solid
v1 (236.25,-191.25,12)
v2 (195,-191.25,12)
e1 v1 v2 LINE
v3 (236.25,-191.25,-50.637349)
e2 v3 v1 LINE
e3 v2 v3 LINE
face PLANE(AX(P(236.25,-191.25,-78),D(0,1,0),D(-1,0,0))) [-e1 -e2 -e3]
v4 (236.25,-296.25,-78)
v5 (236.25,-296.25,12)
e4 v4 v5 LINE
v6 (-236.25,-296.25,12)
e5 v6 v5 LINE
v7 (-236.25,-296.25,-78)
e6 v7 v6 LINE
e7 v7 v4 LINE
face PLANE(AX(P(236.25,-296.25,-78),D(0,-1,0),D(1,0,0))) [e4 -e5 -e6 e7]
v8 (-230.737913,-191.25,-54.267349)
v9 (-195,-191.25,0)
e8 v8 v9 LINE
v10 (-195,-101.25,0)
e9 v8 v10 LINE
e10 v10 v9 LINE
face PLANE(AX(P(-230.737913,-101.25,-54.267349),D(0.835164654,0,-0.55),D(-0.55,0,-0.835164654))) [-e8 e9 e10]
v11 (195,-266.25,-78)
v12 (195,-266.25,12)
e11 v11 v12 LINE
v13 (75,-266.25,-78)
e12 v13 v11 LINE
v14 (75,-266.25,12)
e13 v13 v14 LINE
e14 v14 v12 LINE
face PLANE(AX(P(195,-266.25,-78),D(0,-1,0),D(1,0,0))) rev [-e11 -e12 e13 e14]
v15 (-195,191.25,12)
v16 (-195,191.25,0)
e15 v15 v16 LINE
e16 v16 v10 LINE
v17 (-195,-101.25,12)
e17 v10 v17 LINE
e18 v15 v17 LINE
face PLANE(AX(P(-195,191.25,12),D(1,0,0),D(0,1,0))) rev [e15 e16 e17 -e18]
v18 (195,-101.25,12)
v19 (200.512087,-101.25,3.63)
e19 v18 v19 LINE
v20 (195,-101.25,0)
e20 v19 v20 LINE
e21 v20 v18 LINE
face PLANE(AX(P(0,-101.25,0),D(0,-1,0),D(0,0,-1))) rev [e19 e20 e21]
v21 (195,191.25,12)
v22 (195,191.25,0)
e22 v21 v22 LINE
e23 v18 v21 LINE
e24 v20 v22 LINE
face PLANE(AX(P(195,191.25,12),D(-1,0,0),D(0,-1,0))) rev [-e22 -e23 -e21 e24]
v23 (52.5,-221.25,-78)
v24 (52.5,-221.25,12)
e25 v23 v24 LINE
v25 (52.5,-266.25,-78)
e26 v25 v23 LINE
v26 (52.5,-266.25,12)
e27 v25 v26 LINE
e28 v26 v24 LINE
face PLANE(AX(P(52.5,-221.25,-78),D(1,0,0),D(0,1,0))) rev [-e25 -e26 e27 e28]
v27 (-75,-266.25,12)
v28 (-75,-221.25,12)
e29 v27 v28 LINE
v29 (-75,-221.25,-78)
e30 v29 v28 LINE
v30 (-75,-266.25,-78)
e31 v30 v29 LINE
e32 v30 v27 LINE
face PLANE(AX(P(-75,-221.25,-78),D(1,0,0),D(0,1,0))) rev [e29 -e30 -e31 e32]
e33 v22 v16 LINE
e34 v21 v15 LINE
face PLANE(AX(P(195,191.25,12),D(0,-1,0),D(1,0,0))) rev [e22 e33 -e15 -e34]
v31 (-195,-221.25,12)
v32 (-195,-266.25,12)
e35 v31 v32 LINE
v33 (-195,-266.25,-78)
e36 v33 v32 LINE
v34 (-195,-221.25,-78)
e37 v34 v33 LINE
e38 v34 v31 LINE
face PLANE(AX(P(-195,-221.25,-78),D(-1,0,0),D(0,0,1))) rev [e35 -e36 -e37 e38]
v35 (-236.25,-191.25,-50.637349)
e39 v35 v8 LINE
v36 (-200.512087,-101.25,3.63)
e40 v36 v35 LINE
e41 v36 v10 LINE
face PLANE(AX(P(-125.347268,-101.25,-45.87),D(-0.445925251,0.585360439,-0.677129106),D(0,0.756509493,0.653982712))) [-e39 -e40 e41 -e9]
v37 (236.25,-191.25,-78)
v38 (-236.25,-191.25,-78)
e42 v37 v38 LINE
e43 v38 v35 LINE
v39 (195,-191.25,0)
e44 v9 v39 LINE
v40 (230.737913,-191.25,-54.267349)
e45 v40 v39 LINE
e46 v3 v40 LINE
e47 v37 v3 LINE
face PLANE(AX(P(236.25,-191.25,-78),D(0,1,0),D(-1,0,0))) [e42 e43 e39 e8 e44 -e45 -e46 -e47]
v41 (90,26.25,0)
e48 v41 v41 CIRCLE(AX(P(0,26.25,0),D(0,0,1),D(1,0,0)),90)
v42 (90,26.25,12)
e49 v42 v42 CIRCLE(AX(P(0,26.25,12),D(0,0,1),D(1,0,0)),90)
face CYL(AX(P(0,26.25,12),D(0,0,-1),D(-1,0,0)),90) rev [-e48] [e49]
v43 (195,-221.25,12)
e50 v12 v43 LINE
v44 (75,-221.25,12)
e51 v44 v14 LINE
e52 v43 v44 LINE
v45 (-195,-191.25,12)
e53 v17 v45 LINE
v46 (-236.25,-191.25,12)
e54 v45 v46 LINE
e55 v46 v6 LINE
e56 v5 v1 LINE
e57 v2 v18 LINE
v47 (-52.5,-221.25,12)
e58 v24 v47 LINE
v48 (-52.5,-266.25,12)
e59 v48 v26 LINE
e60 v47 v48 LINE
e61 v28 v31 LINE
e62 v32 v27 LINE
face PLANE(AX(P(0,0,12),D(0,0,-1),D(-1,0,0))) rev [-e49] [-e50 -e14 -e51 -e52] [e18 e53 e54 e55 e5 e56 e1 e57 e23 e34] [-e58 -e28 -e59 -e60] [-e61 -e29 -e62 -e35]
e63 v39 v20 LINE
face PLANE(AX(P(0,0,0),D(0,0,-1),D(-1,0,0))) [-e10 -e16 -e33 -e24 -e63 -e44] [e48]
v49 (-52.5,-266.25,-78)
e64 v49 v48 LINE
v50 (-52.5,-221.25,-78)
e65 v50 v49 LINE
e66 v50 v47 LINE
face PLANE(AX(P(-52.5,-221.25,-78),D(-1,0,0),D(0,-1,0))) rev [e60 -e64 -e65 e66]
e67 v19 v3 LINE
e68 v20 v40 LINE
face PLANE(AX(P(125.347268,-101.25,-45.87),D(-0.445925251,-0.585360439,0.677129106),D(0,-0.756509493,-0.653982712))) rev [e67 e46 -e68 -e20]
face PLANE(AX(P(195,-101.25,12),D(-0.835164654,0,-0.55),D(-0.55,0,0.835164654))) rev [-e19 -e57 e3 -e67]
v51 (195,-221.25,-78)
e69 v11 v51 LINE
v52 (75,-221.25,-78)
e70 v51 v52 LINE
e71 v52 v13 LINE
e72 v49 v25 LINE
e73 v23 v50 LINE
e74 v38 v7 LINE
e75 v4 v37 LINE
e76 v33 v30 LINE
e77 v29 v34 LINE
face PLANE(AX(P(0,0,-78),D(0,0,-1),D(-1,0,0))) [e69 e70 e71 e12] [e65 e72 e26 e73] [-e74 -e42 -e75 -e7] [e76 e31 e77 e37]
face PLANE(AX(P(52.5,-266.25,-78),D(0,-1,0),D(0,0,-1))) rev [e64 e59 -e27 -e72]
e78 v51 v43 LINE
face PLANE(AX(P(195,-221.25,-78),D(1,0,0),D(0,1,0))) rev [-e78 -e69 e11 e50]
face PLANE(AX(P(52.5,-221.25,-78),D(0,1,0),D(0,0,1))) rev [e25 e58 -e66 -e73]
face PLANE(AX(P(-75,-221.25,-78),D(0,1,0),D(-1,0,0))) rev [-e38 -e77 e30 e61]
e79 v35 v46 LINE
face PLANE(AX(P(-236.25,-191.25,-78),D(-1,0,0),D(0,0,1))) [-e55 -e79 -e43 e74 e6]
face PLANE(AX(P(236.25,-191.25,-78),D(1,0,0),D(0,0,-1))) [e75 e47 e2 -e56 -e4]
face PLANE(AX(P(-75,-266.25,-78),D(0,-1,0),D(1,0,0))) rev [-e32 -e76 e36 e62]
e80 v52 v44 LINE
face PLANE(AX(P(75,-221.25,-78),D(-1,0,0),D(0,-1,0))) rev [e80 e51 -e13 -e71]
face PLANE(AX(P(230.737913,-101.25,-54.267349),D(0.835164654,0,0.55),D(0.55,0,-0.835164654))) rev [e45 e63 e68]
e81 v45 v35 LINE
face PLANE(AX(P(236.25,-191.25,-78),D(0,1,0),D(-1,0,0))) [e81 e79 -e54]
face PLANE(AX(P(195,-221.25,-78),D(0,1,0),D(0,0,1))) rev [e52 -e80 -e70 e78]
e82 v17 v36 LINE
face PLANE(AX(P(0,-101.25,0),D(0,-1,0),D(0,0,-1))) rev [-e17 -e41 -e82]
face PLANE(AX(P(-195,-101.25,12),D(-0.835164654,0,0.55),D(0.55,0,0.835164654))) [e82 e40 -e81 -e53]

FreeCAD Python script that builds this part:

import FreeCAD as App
import Part
import Sketcher
Q = App.Units.Quantity


def add_polygon(sketch, points):
    """Adds a closed chain of lines whose ends are joined by coincident constraints."""
    first, n = sketch.GeometryCount, len(points)
    for a, b in zip(points, points[1:] + points[:1]):
        sketch.addGeometry(Part.LineSegment(App.Vector(*a, 0), App.Vector(*b, 0)), False)
    for i in range(n):
        sketch.addConstraint(Sketcher.Constraint("Coincident", first + i, 2, first + (i + 1) % n, 1))

doc = App.newDocument("Part")
body = doc.addObject("PartDesign::Body", "Body")

# Sketch on XY plane
sketch1 = doc.addObject("Sketcher::SketchObject", "Sketch")
body.addObject(sketch1)
sketch1.AttachmentSupport = (doc.XY_Plane, [""])
sketch1.MapMode = "FlatFace"
add_polygon(sketch1, [(-195, 191), (-195, -191), (195, -191), (195, 191)])  # lines 0-3
sketch1.addGeometry(Part.Circle(App.Vector(0, 26, 0), App.Vector(0, 0, 1), 90), False)  # 4
sketch1.addConstraint(Sketcher.Constraint("Vertical", 0))
sketch1.addConstraint(Sketcher.Constraint("Horizontal", 1))
sketch1.addConstraint(Sketcher.Constraint("Vertical", 2))
sketch1.addConstraint(Sketcher.Constraint("Horizontal", 3))
sketch1.addConstraint(Sketcher.Constraint("Symmetric", 0, 2, 2, 2, -1, 1))
sketch1.addConstraint(Sketcher.Constraint("PointOnObject", 4, 3, -2))
sketch1.addConstraint(Sketcher.Constraint("Diameter", 4, Q("180 mm")))
sketch1.addConstraint(Sketcher.Constraint("DistanceX", 1, 1, 1, 2, Q("390 mm")))
sketch1.addConstraint(Sketcher.Constraint("DistanceY", 0, 2, 0, 1, Q("382.5 mm")))
sketch1.addConstraint(Sketcher.Constraint("DistanceY", 4, 3, 2, 2, Q("165 mm")))
pad1 = doc.addObject("PartDesign::Pad", "Pad")
body.addObject(pad1)
pad1.Profile = sketch1
pad1.Length = 12

# Sketch on XY plane
sketch2 = doc.addObject("Sketcher::SketchObject", "Sketch001")
body.addObject(sketch2)
sketch2.AttachmentSupport = (doc.XY_Plane, [""])
sketch2.MapMode = "FlatFace"
sketch2.AttachmentOffset = App.Placement(App.Vector(0, 0, 12), App.Rotation())
add_polygon(sketch2, [(-236, -191), (-236, -296), (236, -296), (236, -191)])  # lines 0-3
add_polygon(sketch2, [(-75, -266), (-195, -266), (-195, -221), (-75, -221)])  # lines 4-7
add_polygon(sketch2, [(52, -266), (-52, -266), (-52, -221), (52, -221)])  # lines 8-11
add_polygon(sketch2, [(195, -266), (75, -266), (75, -221), (195, -221)])  # lines 12-15
sketch2.addConstraint(Sketcher.Constraint("Vertical", 0))
sketch2.addConstraint(Sketcher.Constraint("Horizontal", 1))
sketch2.addConstraint(Sketcher.Constraint("Vertical", 2))
sketch2.addConstraint(Sketcher.Constraint("Horizontal", 3))
sketch2.addConstraint(Sketcher.Constraint("Horizontal", 4))
sketch2.addConstraint(Sketcher.Constraint("Vertical", 5))
sketch2.addConstraint(Sketcher.Constraint("Horizontal", 6))
sketch2.addConstraint(Sketcher.Constraint("Vertical", 7))
sketch2.addConstraint(Sketcher.Constraint("Horizontal", 8))
sketch2.addConstraint(Sketcher.Constraint("Vertical", 9))
sketch2.addConstraint(Sketcher.Constraint("Horizontal", 10))
sketch2.addConstraint(Sketcher.Constraint("Vertical", 11))
sketch2.addConstraint(Sketcher.Constraint("Horizontal", 12))
sketch2.addConstraint(Sketcher.Constraint("Vertical", 13))
sketch2.addConstraint(Sketcher.Constraint("Horizontal", 14))
sketch2.addConstraint(Sketcher.Constraint("Vertical", 15))
sketch2.addConstraint(Sketcher.Constraint("Symmetric", 7, 2, 12, 2, -2))
sketch2.addConstraint(Sketcher.Constraint("Symmetric", 5, 2, 14, 2, -2))
sketch2.addConstraint(Sketcher.Constraint("Horizontal", 7, 2, 8, 2))
sketch2.addConstraint(Sketcher.Constraint("Horizontal", 6, 2, 9, 2))
sketch2.addConstraint(Sketcher.Constraint("Equal", 10, 0))
sketch2.addConstraint(Sketcher.Constraint("DistanceX", 4, 2, 4, 1, Q("120 mm")))
sketch2.addConstraint(Sketcher.Constraint("DistanceX", 8, 2, 8, 1, Q("105 mm")))
sketch2.addConstraint(Sketcher.Constraint("DistanceY", 5, 1, 5, 2, Q("45 mm")))
sketch2.addConstraint(Sketcher.Constraint("DistanceX", 1, 1, 1, 2, Q("472.5 mm")))
sketch2.addConstraint(Sketcher.Constraint("DistanceX", 4, 2, -1, 1, Q("195 mm")))
sketch2.addConstraint(Sketcher.Constraint("DistanceY", 0, 2, 4, 2, Q("30 mm")))
sketch2.addConstraint(Sketcher.Constraint("DistanceX", 8, 2, -1, 1, Q("52.5 mm")))
sketch2.addConstraint(Sketcher.Constraint("DistanceX", 0, 2, -1, 1, Q("236.25 mm")))
sketch2.addConstraint(Sketcher.Constraint("DistanceY", 0, 2, -1, 1, Q("296.25 mm")))
pad2 = doc.addObject("PartDesign::Pad", "Pad001")
body.addObject(pad2)
pad2.Profile = sketch2
pad2.Length = 90
pad2.Reversed = True

# Sketch on XZ plane
sketch3 = doc.addObject("Sketcher::SketchObject", "Sketch002")
body.addObject(sketch3)
sketch3.AttachmentSupport = (doc.XZ_Plane, [""])
sketch3.MapMode = "FlatFace"
sketch3.AttachmentOffset = App.Placement(App.Vector(0, 0, 191.25), App.Rotation())
add_polygon(sketch3, [(195, 12), (236, -51), (231, -54), (195, 0)])  # lines 0-3
sketch3.addConstraint(Sketcher.Constraint("Vertical", 3))
sketch3.addConstraint(Sketcher.Constraint("PointOnObject", 2, 2, -1))
sketch3.addConstraint(Sketcher.Constraint("Perpendicular", 0, 1))
sketch3.addConstraint(Sketcher.Constraint("Perpendicular", 1, 2))
sketch3.addConstraint(Sketcher.Constraint("DistanceY", 3, 1, 3, 2, Q("12 mm")))
sketch3.addConstraint(Sketcher.Constraint("Distance", 0, Q("75 mm")))
sketch3.addConstraint(Sketcher.Constraint("DistanceX", -1, 1, 2, 2, Q("195 mm")))
sketch3.addConstraint(Sketcher.Constraint("Distance", 1, Q("6.6 mm")))
pad3 = doc.addObject("PartDesign::Pad", "Pad002")
body.addObject(pad3)
pad3.Profile = sketch3
pad3.Length = 90
pad3.Reversed = True

# Sketch on an angled plane
sketch4 = doc.addObject("Sketcher::SketchObject", "Sketch003")
body.addObject(sketch4)
sketch4.Placement = App.Placement(App.Vector(141.524587, 0, 93.201409), App.Rotation(App.Vector(0.55, 0, -0.835164654), App.Vector(0, 0.999999999, 0), App.Vector(0.835164654, 0, 0.55), "ZXY"))
add_polygon(sketch4, [(172, -101), (107, -101), (172, -191)])  # lines 0-2
sketch4.addConstraint(Sketcher.Constraint("Horizontal", 0))
sketch4.addConstraint(Sketcher.Constraint("Vertical", 2))
sketch4.addConstraint(Sketcher.Constraint("DistanceY", 2, 1, 2, 2, Q("90 mm")))
sketch4.addConstraint(Sketcher.Constraint("DistanceX", -1, 1, 0, 2, Q("107.25 mm")))
sketch4.addConstraint(Sketcher.Constraint("DistanceY", 0, 2, -1, 1, Q("101.25 mm")))
sketch4.addConstraint(Sketcher.Constraint("Distance", 1, Q("111.005151 mm")))
pocket1 = doc.addObject("PartDesign::Pocket", "Pocket")
body.addObject(pocket1)
pocket1.Profile = sketch4
pocket1.Length = 90
doc.recompute()

mirrored = doc.addObject("PartDesign::Mirrored", "Mirrored")
body.addObject(mirrored)
mirrored.Originals = [pad3, pocket1]
mirrored.MirrorPlane = (doc.YZ_Plane, [""])
body.Tip = mirrored

doc.recompute()
